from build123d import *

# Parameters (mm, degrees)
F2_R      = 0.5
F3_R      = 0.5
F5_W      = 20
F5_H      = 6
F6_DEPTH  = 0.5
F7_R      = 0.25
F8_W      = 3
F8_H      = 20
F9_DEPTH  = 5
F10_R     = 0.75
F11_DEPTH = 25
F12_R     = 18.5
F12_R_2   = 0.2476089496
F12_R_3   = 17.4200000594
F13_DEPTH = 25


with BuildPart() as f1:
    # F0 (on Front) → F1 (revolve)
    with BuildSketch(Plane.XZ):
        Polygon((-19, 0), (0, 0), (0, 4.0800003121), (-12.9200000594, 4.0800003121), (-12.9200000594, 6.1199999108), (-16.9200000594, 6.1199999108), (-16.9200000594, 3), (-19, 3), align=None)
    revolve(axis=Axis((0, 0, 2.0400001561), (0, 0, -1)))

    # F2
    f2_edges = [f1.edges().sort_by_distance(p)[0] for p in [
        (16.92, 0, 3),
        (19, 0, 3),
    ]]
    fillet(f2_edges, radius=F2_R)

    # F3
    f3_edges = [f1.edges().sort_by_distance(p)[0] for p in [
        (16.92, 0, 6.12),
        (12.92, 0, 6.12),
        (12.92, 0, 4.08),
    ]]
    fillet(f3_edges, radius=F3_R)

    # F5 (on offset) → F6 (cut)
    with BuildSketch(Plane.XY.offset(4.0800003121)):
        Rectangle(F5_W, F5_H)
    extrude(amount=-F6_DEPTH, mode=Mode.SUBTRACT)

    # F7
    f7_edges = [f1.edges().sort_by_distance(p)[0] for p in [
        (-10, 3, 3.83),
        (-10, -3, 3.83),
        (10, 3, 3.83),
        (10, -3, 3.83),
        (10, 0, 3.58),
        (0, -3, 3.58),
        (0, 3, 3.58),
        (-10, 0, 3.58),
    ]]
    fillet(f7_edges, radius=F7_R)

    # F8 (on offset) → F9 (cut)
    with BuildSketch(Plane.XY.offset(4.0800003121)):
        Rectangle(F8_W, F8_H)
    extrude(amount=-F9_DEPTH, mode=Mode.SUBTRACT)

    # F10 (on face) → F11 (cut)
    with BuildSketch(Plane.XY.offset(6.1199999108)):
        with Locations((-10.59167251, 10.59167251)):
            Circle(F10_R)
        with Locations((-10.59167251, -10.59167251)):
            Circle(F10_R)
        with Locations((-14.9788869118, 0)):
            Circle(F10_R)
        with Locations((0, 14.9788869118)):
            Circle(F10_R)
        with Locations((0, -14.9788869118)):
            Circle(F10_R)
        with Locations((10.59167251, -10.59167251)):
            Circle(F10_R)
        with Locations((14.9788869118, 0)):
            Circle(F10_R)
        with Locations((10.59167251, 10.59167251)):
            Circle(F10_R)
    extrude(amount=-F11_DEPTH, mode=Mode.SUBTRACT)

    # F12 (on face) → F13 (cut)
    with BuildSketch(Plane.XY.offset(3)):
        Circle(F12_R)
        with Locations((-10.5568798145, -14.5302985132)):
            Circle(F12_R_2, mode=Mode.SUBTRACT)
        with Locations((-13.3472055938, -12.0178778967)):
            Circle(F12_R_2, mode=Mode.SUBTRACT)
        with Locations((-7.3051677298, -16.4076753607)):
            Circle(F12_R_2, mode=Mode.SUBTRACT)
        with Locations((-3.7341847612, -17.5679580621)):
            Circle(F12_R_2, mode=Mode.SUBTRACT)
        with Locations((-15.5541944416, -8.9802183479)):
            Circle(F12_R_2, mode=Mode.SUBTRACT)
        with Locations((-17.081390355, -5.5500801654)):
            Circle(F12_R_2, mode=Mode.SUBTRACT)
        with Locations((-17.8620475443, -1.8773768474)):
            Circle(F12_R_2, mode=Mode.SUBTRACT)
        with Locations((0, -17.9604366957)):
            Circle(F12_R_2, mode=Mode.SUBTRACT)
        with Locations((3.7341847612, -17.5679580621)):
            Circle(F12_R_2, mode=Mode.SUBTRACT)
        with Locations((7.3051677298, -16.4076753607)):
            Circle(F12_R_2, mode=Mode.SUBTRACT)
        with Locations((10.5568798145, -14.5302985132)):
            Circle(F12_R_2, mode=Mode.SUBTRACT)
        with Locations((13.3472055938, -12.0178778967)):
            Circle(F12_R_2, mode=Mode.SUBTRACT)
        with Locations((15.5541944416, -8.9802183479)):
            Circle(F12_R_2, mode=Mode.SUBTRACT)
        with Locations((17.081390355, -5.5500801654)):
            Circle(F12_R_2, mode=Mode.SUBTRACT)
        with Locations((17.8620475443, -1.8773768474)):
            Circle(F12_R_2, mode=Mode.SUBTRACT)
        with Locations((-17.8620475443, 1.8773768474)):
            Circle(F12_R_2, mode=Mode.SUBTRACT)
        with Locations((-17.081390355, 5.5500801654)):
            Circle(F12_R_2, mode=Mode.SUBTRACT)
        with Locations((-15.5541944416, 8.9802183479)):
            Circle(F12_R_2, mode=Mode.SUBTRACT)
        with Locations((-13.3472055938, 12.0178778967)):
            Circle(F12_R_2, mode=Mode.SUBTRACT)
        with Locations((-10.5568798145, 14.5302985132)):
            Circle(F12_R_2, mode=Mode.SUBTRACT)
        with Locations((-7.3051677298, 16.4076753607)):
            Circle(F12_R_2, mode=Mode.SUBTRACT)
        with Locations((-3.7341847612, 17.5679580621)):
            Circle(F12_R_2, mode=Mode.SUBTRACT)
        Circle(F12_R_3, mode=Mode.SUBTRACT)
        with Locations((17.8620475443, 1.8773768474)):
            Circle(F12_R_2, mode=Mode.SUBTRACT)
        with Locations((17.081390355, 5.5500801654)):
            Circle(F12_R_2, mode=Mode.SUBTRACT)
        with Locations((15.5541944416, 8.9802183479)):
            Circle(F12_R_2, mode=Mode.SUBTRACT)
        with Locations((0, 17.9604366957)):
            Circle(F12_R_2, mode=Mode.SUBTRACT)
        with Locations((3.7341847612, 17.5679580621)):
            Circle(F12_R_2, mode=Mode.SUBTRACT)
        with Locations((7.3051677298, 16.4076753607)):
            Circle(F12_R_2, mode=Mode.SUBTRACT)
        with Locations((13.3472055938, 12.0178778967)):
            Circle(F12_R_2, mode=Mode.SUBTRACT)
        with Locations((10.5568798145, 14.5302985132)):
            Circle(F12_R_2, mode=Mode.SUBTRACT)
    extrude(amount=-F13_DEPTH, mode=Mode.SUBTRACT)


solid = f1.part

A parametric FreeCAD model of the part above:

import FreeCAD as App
import Part
import Sketcher
Q = App.Units.Quantity


def edges_at(feature, points):
    """Names of the edges that pass closest to the given points."""
    edges = feature.Shape.Edges
    near = lambda p: min(range(len(edges)), key=lambda i: edges[i].distToShape(Part.Vertex(*p))[0])
    return sorted({f"Edge{near(p) + 1}" for p in points})

doc = App.newDocument("Part")
body = doc.addObject("PartDesign::Body", "Body")
body.AllowCompound = True

# Sketch on XZ plane
sketch1 = body.newObject("Sketcher::SketchObject", "Sketch")
sketch1.AttachmentSupport = (doc.getObject("XZ_Plane"), [""])
sketch1.MapMode = "FlatFace"
sketch1.addGeometry(Part.LineSegment(App.Vector(-19, 0, 0), App.Vector(0, 0, 0)), False)
sketch1.addGeometry(Part.LineSegment(App.Vector(0, 0, 0), App.Vector(0, 4.08, 0)), False)
sketch1.addGeometry(Part.LineSegment(App.Vector(0, 4.08, 0), App.Vector(-12.92, 4.08, 0)), False)
sketch1.addGeometry(Part.LineSegment(App.Vector(-12.92, 4.08, 0), App.Vector(-12.92, 6.12, 0)), False)
sketch1.addGeometry(Part.LineSegment(App.Vector(-12.92, 6.12, 0), App.Vector(-16.92, 6.12, 0)), False)
sketch1.addGeometry(Part.LineSegment(App.Vector(-16.92, 6.12, 0), App.Vector(-16.92, 3, 0)), False)
sketch1.addGeometry(Part.LineSegment(App.Vector(-16.92, 3, 0), App.Vector(-19, 3, 0)), False)
sketch1.addGeometry(Part.LineSegment(App.Vector(-19, 3, 0), App.Vector(-19, 0, 0)), False)
sketch1.addConstraint(Sketcher.Constraint("Coincident", 0, 2, 1, 1))
sketch1.addConstraint(Sketcher.Constraint("Coincident", 1, 2, 2, 1))
sketch1.addConstraint(Sketcher.Constraint("Coincident", 2, 2, 3, 1))
sketch1.addConstraint(Sketcher.Constraint("Coincident", 3, 2, 4, 1))
sketch1.addConstraint(Sketcher.Constraint("Coincident", 4, 2, 5, 1))
sketch1.addConstraint(Sketcher.Constraint("Coincident", 5, 2, 6, 1))
sketch1.addConstraint(Sketcher.Constraint("Coincident", 6, 2, 7, 1))
sketch1.addConstraint(Sketcher.Constraint("Coincident", 7, 2, 0, 1))
sketch1.addConstraint(Sketcher.Constraint("Horizontal", 0))
sketch1.addConstraint(Sketcher.Constraint("Vertical", 1))
sketch1.addConstraint(Sketcher.Constraint("Horizontal", 2))
sketch1.addConstraint(Sketcher.Constraint("Vertical", 3))
sketch1.addConstraint(Sketcher.Constraint("Horizontal", 4))
sketch1.addConstraint(Sketcher.Constraint("Vertical", 5))
sketch1.addConstraint(Sketcher.Constraint("Horizontal", 6))
sketch1.addConstraint(Sketcher.Constraint("Vertical", 7))
sketch1.addConstraint(Sketcher.Constraint("Coincident", 0, 2, -1, 1))
sketch1.addConstraint(Sketcher.Constraint("DistanceX", 0, 1, 0, 2, Q("19 mm")))
sketch1.addConstraint(Sketcher.Constraint("DistanceX", 4, 2, 4, 1, Q("4 mm")))
sketch1.addConstraint(Sketcher.Constraint("DistanceY", 7, 2, 7, 1, Q("3 mm")))
sketch1.addConstraint(Sketcher.Constraint("DistanceX", 2, 2, 2, 1, Q("12.92 mm")))
sketch1.addConstraint(Sketcher.Constraint("DistanceY", 1, 1, 1, 2, Q("4.08 mm")))
sketch1.addConstraint(Sketcher.Constraint("DistanceY", 3, 1, 3, 2, Q("2.04 mm")))
revolution = body.newObject("PartDesign::Revolution", "Revolution")
revolution.Profile = sketch1
revolution.ReferenceAxis = (sketch1, ["V_Axis"])
revolution.Angle = 360
doc.recompute()

fillet = body.newObject("PartDesign::Fillet", "Fillet")
fillet.Base = (revolution, edges_at(revolution, [(16.92, 0, 3), (19, 0, 3)]))
fillet.Radius = 0.5
doc.recompute()

fillet2 = body.newObject("PartDesign::Fillet", "Fillet001")
fillet2.Base = (fillet, edges_at(fillet, [(16.92, 0, 6.12), (12.92, 0, 6.12), (12.92, 0, 4.08)]))
fillet2.Radius = 0.5

# Sketch on XY plane
sketch2 = body.newObject("Sketcher::SketchObject", "Sketch001")
sketch2.AttachmentSupport = (doc.getObject("XY_Plane"), [""])
sketch2.MapMode = "FlatFace"
sketch2.AttachmentOffset = App.Placement(App.Vector(0, 0, 4.08), App.Rotation())
sketch2.addGeometry(Part.LineSegment(App.Vector(-10, 3, 0), App.Vector(-10, -3, 0)), False)
sketch2.addGeometry(Part.LineSegment(App.Vector(-10, -3, 0), App.Vector(10, -3, 0)), False)
sketch2.addGeometry(Part.LineSegment(App.Vector(10, -3, 0), App.Vector(10, 3, 0)), False)
sketch2.addGeometry(Part.LineSegment(App.Vector(10, 3, 0), App.Vector(-10, 3, 0)), False)
sketch2.addConstraint(Sketcher.Constraint("Coincident", 0, 2, 1, 1))
sketch2.addConstraint(Sketcher.Constraint("Coincident", 1, 2, 2, 1))
sketch2.addConstraint(Sketcher.Constraint("Coincident", 2, 2, 3, 1))
sketch2.addConstraint(Sketcher.Constraint("Coincident", 3, 2, 0, 1))
sketch2.addConstraint(Sketcher.Constraint("Vertical", 0))
sketch2.addConstraint(Sketcher.Constraint("Horizontal", 1))
sketch2.addConstraint(Sketcher.Constraint("Vertical", 2))
sketch2.addConstraint(Sketcher.Constraint("Horizontal", 3))
sketch2.addConstraint(Sketcher.Constraint("Symmetric", 0, 2, 2, 2, -1, 1))
sketch2.addConstraint(Sketcher.Constraint("DistanceX", 1, 1, 1, 2, Q("20 mm")))
sketch2.addConstraint(Sketcher.Constraint("DistanceY", 0, 2, 0, 1, Q("6 mm")))
pocket1 = body.newObject("PartDesign::Pocket", "Pocket")
pocket1.Profile = sketch2
pocket1.Length = 0.5
doc.recompute()

fillet3 = body.newObject("PartDesign::Fillet", "Fillet002")
fillet3.Base = (pocket1, edges_at(pocket1, [
    (-10, 3, 3.83),
    (-10, -3, 3.83),
    (10, 3, 3.83),
    (10, -3, 3.83),
    (10, 0, 3.58),
    (0, -3, 3.58),
    (0, 3, 3.58),
    (-10, 0, 3.58),
]))
fillet3.Radius = 0.25

# Sketch on XY plane
sketch3 = body.newObject("Sketcher::SketchObject", "Sketch002")
sketch3.AttachmentSupport = (doc.getObject("XY_Plane"), [""])
sketch3.MapMode = "FlatFace"
sketch3.AttachmentOffset = App.Placement(App.Vector(0, 0, 4.08), App.Rotation())
sketch3.addGeometry(Part.LineSegment(App.Vector(-1.5, 10, 0), App.Vector(-1.5, -10, 0)), False)
sketch3.addGeometry(Part.LineSegment(App.Vector(-1.5, -10, 0), App.Vector(1.5, -10, 0)), False)
sketch3.addGeometry(Part.LineSegment(App.Vector(1.5, -10, 0), App.Vector(1.5, 10, 0)), False)
sketch3.addGeometry(Part.LineSegment(App.Vector(1.5, 10, 0), App.Vector(-1.5, 10, 0)), False)
sketch3.addConstraint(Sketcher.Constraint("Coincident", 0, 2, 1, 1))
sketch3.addConstraint(Sketcher.Constraint("Coincident", 1, 2, 2, 1))
sketch3.addConstraint(Sketcher.Constraint("Coincident", 2, 2, 3, 1))
sketch3.addConstraint(Sketcher.Constraint("Coincident", 3, 2, 0, 1))
sketch3.addConstraint(Sketcher.Constraint("Vertical", 0))
sketch3.addConstraint(Sketcher.Constraint("Horizontal", 1))
sketch3.addConstraint(Sketcher.Constraint("Vertical", 2))
sketch3.addConstraint(Sketcher.Constraint("Horizontal", 3))
sketch3.addConstraint(Sketcher.Constraint("Symmetric", 0, 2, 2, 2, -1, 1))
sketch3.addConstraint(Sketcher.Constraint("DistanceX", 1, 1, 1, 2, Q("3 mm")))
sketch3.addConstraint(Sketcher.Constraint("DistanceY", 0, 2, 0, 1, Q("20 mm")))
pocket2 = body.newObject("PartDesign::Pocket", "Pocket001")
pocket2.Profile = sketch3
pocket2.Length = 5

# Sketch on XY plane
sketch4 = body.newObject("Sketcher::SketchObject", "Sketch003")
sketch4.AttachmentSupport = (doc.getObject("XY_Plane"), [""])
sketch4.MapMode = "FlatFace"
sketch4.AttachmentOffset = App.Placement(App.Vector(0, 0, 6.12), App.Rotation())
sketch4.addGeometry(Part.Circle(App.Vector(-10.591673, 10.591673, 0), App.Vector(0, 0, 1), 0.75), False)
sketch4.addGeometry(Part.Circle(App.Vector(-10.591673, -10.591673, 0), App.Vector(0, 0, 1), 0.75), False)
sketch4.addGeometry(Part.Circle(App.Vector(-14.978887, 0, 0), App.Vector(0, 0, 1), 0.75), False)
sketch4.addGeometry(Part.Circle(App.Vector(0, 14.978887, 0), App.Vector(0, 0, 1), 0.75), False)
sketch4.addGeometry(Part.Circle(App.Vector(0, -14.978887, 0), App.Vector(0, 0, 1), 0.75), False)
sketch4.addGeometry(Part.Circle(App.Vector(10.591673, -10.591673, 0), App.Vector(0, 0, 1), 0.75), False)
sketch4.addGeometry(Part.Circle(App.Vector(14.978887, 0, 0), App.Vector(0, 0, 1), 0.75), False)
sketch4.addGeometry(Part.Circle(App.Vector(10.591673, 10.591673, 0), App.Vector(0, 0, 1), 0.75), False)
sketch4.addConstraint(Sketcher.Constraint("Equal", 0, 1))
sketch4.addConstraint(Sketcher.Constraint("Equal", 1, 2))
sketch4.addConstraint(Sketcher.Constraint("Equal", 2, 3))
sketch4.addConstraint(Sketcher.Constraint("Equal", 3, 4))
sketch4.addConstraint(Sketcher.Constraint("Equal", 4, 5))
sketch4.addConstraint(Sketcher.Constraint("Equal", 5, 6))
sketch4.addConstraint(Sketcher.Constraint("Equal", 6, 7))
sketch4.addConstraint(Sketcher.Constraint("Symmetric", 3, 3, 4, 3, -1, 1))
sketch4.addConstraint(Sketcher.Constraint("Symmetric", 0, 3, 5, 3, -1, 1))
sketch4.addConstraint(Sketcher.Constraint("Symmetric", 2, 3, 6, 3, -1, 1))
sketch4.addConstraint(Sketcher.Constraint("Symmetric", 1, 3, 7, 3, -1, 1))
sketch4.addConstraint(Sketcher.Constraint("Symmetric", 1, 3, 5, 3, -2))
sketch4.addConstraint(Sketcher.Constraint("PointOnObject", 2, 3, -1))
sketch4.addConstraint(Sketcher.Constraint("PointOnObject", 3, 3, -2))
sketch4.addConstraint(Sketcher.Constraint("Diameter", 0, Q("1.5 mm")))
sketch4.addConstraint(Sketcher.Constraint("DistanceY", 1, 3, 3, 3, Q("25.570559 mm")))
sketch4.addConstraint(Sketcher.Constraint("DistanceX", 2, 3, 5, 3, Q("25.570559 mm")))
sketch4.addConstraint(Sketcher.Constraint("DistanceX", 0, 3, -1, 1, Q("10.591673 mm")))
sketch4.addConstraint(Sketcher.Constraint("DistanceY", -1, 1, 0, 3, Q("10.591673 mm")))
pocket3 = body.newObject("PartDesign::Pocket", "Pocket002")
pocket3.Profile = sketch4
pocket3.Length = 25

# Sketch on XY plane
sketch5 = body.newObject("Sketcher::SketchObject", "Sketch004")
sketch5.AttachmentSupport = (doc.getObject("XY_Plane"), [""])
sketch5.MapMode = "FlatFace"
sketch5.AttachmentOffset = App.Placement(App.Vector(0, 0, 3), App.Rotation())
sketch5.addGeometry(Part.Circle(App.Vector(0, 0, 0), App.Vector(0, 0, 1), 18.5), False)
sketch5.addGeometry(Part.Circle(App.Vector(-10.55688, -14.530299, 0), App.Vector(0, 0, 1), 0.247609), False)
sketch5.addGeometry(Part.Circle(App.Vector(-13.347206, -12.017878, 0), App.Vector(0, 0, 1), 0.247609), False)
sketch5.addGeometry(Part.Circle(App.Vector(-7.305168, -16.407675, 0), App.Vector(0, 0, 1), 0.247609), False)
sketch5.addGeometry(Part.Circle(App.Vector(-3.734185, -17.567958, 0), App.Vector(0, 0, 1), 0.247609), False)
sketch5.addGeometry(Part.Circle(App.Vector(-15.554194, -8.980218, 0), App.Vector(0, 0, 1), 0.247609), False)
sketch5.addGeometry(Part.Circle(App.Vector(-17.08139, -5.55008, 0), App.Vector(0, 0, 1), 0.247609), False)
sketch5.addGeometry(Part.Circle(App.Vector(-17.862048, -1.877377, 0), App.Vector(0, 0, 1), 0.247609), False)
sketch5.addGeometry(Part.Circle(App.Vector(0, -17.960437, 0), App.Vector(0, 0, 1), 0.247609), False)
sketch5.addGeometry(Part.Circle(App.Vector(3.734185, -17.567958, 0), App.Vector(0, 0, 1), 0.247609), False)
sketch5.addGeometry(Part.Circle(App.Vector(7.305168, -16.407675, 0), App.Vector(0, 0, 1), 0.247609), False)
sketch5.addGeometry(Part.Circle(App.Vector(10.55688, -14.530299, 0), App.Vector(0, 0, 1), 0.247609), False)
sketch5.addGeometry(Part.Circle(App.Vector(13.347206, -12.017878, 0), App.Vector(0, 0, 1), 0.247609), False)
sketch5.addGeometry(Part.Circle(App.Vector(15.554194, -8.980218, 0), App.Vector(0, 0, 1), 0.247609), False)
sketch5.addGeometry(Part.Circle(App.Vector(17.08139, -5.55008, 0), App.Vector(0, 0, 1), 0.247609), False)
sketch5.addGeometry(Part.Circle(App.Vector(17.862048, -1.877377, 0), App.Vector(0, 0, 1), 0.247609), False)
sketch5.addGeometry(Part.Circle(App.Vector(-17.862048, 1.877377, 0), App.Vector(0, 0, 1), 0.247609), False)
sketch5.addGeometry(Part.Circle(App.Vector(-17.08139, 5.55008, 0), App.Vector(0, 0, 1), 0.247609), False)
sketch5.addGeometry(Part.Circle(App.Vector(-15.554194, 8.980218, 0), App.Vector(0, 0, 1), 0.247609), False)
sketch5.addGeometry(Part.Circle(App.Vector(-13.347206, 12.017878, 0), App.Vector(0, 0, 1), 0.247609), False)
sketch5.addGeometry(Part.Circle(App.Vector(-10.55688, 14.530299, 0), App.Vector(0, 0, 1), 0.247609), False)
sketch5.addGeometry(Part.Circle(App.Vector(-7.305168, 16.407675, 0), App.Vector(0, 0, 1), 0.247609), False)
sketch5.addGeometry(Part.Circle(App.Vector(-3.734185, 17.567958, 0), App.Vector(0, 0, 1), 0.247609), False)
sketch5.addGeometry(Part.Circle(App.Vector(0, 0, 0), App.Vector(0, 0, 1), 17.42), False)
sketch5.addGeometry(Part.Circle(App.Vector(17.862048, 1.877377, 0), App.Vector(0, 0, 1), 0.247609), False)
sketch5.addGeometry(Part.Circle(App.Vector(17.08139, 5.55008, 0), App.Vector(0, 0, 1), 0.247609), False)
sketch5.addGeometry(Part.Circle(App.Vector(15.554194, 8.980218, 0), App.Vector(0, 0, 1), 0.247609), False)
sketch5.addGeometry(Part.Circle(App.Vector(0, 17.960437, 0), App.Vector(0, 0, 1), 0.247609), False)
sketch5.addGeometry(Part.Circle(App.Vector(3.734185, 17.567958, 0), App.Vector(0, 0, 1), 0.247609), False)
sketch5.addGeometry(Part.Circle(App.Vector(7.305168, 16.407675, 0), App.Vector(0, 0, 1), 0.247609), False)
sketch5.addGeometry(Part.Circle(App.Vector(13.347206, 12.017878, 0), App.Vector(0, 0, 1), 0.247609), False)
sketch5.addGeometry(Part.Circle(App.Vector(10.55688, 14.530299, 0), App.Vector(0, 0, 1), 0.247609), False)
sketch5.addConstraint(Sketcher.Constraint("Coincident", 0, 3, -1, 1))
sketch5.addConstraint(Sketcher.Constraint("Coincident", 23, 3, -1, 1))
sketch5.addConstraint(Sketcher.Constraint("Equal", 1, 2))
sketch5.addConstraint(Sketcher.Constraint("Equal", 2, 3))
sketch5.addConstraint(Sketcher.Constraint("Equal", 3, 4))
sketch5.addConstraint(Sketcher.Constraint("Equal", 4, 5))
sketch5.addConstraint(Sketcher.Constraint("Equal", 5, 6))
sketch5.addConstraint(Sketcher.Constraint("Equal", 6, 7))
sketch5.addConstraint(Sketcher.Constraint("Equal", 7, 8))
sketch5.addConstraint(Sketcher.Constraint("Equal", 8, 9))
sketch5.addConstraint(Sketcher.Constraint("Equal", 9, 10))
sketch5.addConstraint(Sketcher.Constraint("Equal", 10, 11))
sketch5.addConstraint(Sketcher.Constraint("Equal", 11, 12))
sketch5.addConstraint(Sketcher.Constraint("Equal", 12, 13))
sketch5.addConstraint(Sketcher.Constraint("Equal", 13, 14))
sketch5.addConstraint(Sketcher.Constraint("Equal", 14, 15))
sketch5.addConstraint(Sketcher.Constraint("Equal", 15, 16))
sketch5.addConstraint(Sketcher.Constraint("Equal", 16, 17))
sketch5.addConstraint(Sketcher.Constraint("Equal", 17, 18))
sketch5.addConstraint(Sketcher.Constraint("Equal", 18, 19))
sketch5.addConstraint(Sketcher.Constraint("Equal", 19, 20))
sketch5.addConstraint(Sketcher.Constraint("Equal", 20, 21))
sketch5.addConstraint(Sketcher.Constraint("Equal", 21, 22))
sketch5.addConstraint(Sketcher.Constraint("Equal", 22, 24))
sketch5.addConstraint(Sketcher.Constraint("Equal", 24, 25))
sketch5.addConstraint(Sketcher.Constraint("Equal", 25, 26))
sketch5.addConstraint(Sketcher.Constraint("Equal", 26, 27))
sketch5.addConstraint(Sketcher.Constraint("Equal", 27, 28))
sketch5.addConstraint(Sketcher.Constraint("Equal", 28, 29))
sketch5.addConstraint(Sketcher.Constraint("Equal", 29, 30))
sketch5.addConstraint(Sketcher.Constraint("Equal", 30, 31))
sketch5.addConstraint(Sketcher.Constraint("Symmetric", 15, 3, 16, 3, -1, 1))
sketch5.addConstraint(Sketcher.Constraint("Symmetric", 14, 3, 17, 3, -1, 1))
sketch5.addConstraint(Sketcher.Constraint("Symmetric", 13, 3, 18, 3, -1, 1))
sketch5.addConstraint(Sketcher.Constraint("Symmetric", 12, 3, 19, 3, -1, 1))
sketch5.addConstraint(Sketcher.Constraint("Symmetric", 11, 3, 20, 3, -1, 1))
sketch5.addConstraint(Sketcher.Constraint("Symmetric", 10, 3, 21, 3, -1, 1))
sketch5.addConstraint(Sketcher.Constraint("Symmetric", 9, 3, 22, 3, -1, 1))
sketch5.addConstraint(Sketcher.Constraint("Symmetric", 7, 3, 24, 3, -1, 1))
sketch5.addConstraint(Sketcher.Constraint("Symmetric", 6, 3, 25, 3, -1, 1))
sketch5.addConstraint(Sketcher.Constraint("Symmetric", 5, 3, 26, 3, -1, 1))
sketch5.addConstraint(Sketcher.Constraint("Symmetric", 8, 3, 27, 3, -1, 1))
sketch5.addConstraint(Sketcher.Constraint("Symmetric", 4, 3, 28, 3, -1, 1))
sketch5.addConstraint(Sketcher.Constraint("Symmetric", 3, 3, 29, 3, -1, 1))
sketch5.addConstraint(Sketcher.Constraint("Symmetric", 2, 3, 30, 3, -1, 1))
sketch5.addConstraint(Sketcher.Constraint("Symmetric", 1, 3, 31, 3, -1, 1))
sketch5.addConstraint(Sketcher.Constraint("Symmetric", 4, 3, 9, 3, -2))
sketch5.addConstraint(Sketcher.Constraint("Symmetric", 3, 3, 10, 3, -2))
sketch5.addConstraint(Sketcher.Constraint("Symmetric", 1, 3, 11, 3, -2))
sketch5.addConstraint(Sketcher.Constraint("Symmetric", 2, 3, 12, 3, -2))
sketch5.addConstraint(Sketcher.Constraint("Symmetric", 5, 3, 13, 3, -2))
sketch5.addConstraint(Sketcher.Constraint("Symmetric", 6, 3, 14, 3, -2))
sketch5.addConstraint(Sketcher.Constraint("Symmetric", 7, 3, 15, 3, -2))
sketch5.addConstraint(Sketcher.Constraint("PointOnObject", 8, 3, -2))
sketch5.addConstraint(Sketcher.Constraint("Diameter", 0, Q("37 mm")))
sketch5.addConstraint(Sketcher.Constraint("Diameter", 23, Q("34.84 mm")))
sketch5.addConstraint(Sketcher.Constraint("Diameter", 1, Q("0.495218 mm")))
sketch5.addConstraint(Sketcher.Constraint("DistanceY", 1, 3, -1, 1, Q("14.530299 mm")))
sketch5.addConstraint(Sketcher.Constraint("DistanceY", 2, 3, 7, 3, Q("10.140501 mm")))
sketch5.addConstraint(Sketcher.Constraint("DistanceY", 5, 3, 17, 3, Q("14.530299 mm")))
sketch5.addConstraint(Sketcher.Constraint("DistanceY", 16, 3, 21, 3, Q("14.530299 mm")))
sketch5.addConstraint(Sketcher.Constraint("DistanceX", 1, 3, -1, 1, Q("10.55688 mm")))
sketch5.addConstraint(Sketcher.Constraint("DistanceY", 4, 3, -1, 1, Q("17.567958 mm")))
sketch5.addConstraint(Sketcher.Constraint("DistanceY", 5, 3, -1, 1, Q("8.980218 mm")))
sketch5.addConstraint(Sketcher.Constraint("DistanceX", 6, 3, -1, 1, Q("17.08139 mm")))
sketch5.addConstraint(Sketcher.Constraint("DistanceY", 1, 3, 2, 3, Q("2.512421 mm")))
sketch5.addConstraint(Sketcher.Constraint("DistanceX", 2, 3, 4, 3, Q("9.613021 mm")))
sketch5.addConstraint(Sketcher.Constraint("DistanceX", 5, 3, 2, 3, Q("2.206989 mm")))
sketch5.addConstraint(Sketcher.Constraint("DistanceX", 7, 3, 2, 3, Q("4.514842 mm")))
sketch5.addConstraint(Sketcher.Constraint("DistanceY", 8, 3, 4, 3, Q("0.392479 mm")))
sketch5.addConstraint(Sketcher.Constraint("DistanceX", 4, 3, 9, 3, Q("7.46837 mm")))
sketch5.addConstraint(Sketcher.Constraint("DistanceX", 16, 3, 21, 3, Q("10.55688 mm")))
pocket4 = body.newObject("PartDesign::Pocket", "Pocket003")
pocket4.Profile = sketch5
pocket4.Length = 25

doc.recompute()
